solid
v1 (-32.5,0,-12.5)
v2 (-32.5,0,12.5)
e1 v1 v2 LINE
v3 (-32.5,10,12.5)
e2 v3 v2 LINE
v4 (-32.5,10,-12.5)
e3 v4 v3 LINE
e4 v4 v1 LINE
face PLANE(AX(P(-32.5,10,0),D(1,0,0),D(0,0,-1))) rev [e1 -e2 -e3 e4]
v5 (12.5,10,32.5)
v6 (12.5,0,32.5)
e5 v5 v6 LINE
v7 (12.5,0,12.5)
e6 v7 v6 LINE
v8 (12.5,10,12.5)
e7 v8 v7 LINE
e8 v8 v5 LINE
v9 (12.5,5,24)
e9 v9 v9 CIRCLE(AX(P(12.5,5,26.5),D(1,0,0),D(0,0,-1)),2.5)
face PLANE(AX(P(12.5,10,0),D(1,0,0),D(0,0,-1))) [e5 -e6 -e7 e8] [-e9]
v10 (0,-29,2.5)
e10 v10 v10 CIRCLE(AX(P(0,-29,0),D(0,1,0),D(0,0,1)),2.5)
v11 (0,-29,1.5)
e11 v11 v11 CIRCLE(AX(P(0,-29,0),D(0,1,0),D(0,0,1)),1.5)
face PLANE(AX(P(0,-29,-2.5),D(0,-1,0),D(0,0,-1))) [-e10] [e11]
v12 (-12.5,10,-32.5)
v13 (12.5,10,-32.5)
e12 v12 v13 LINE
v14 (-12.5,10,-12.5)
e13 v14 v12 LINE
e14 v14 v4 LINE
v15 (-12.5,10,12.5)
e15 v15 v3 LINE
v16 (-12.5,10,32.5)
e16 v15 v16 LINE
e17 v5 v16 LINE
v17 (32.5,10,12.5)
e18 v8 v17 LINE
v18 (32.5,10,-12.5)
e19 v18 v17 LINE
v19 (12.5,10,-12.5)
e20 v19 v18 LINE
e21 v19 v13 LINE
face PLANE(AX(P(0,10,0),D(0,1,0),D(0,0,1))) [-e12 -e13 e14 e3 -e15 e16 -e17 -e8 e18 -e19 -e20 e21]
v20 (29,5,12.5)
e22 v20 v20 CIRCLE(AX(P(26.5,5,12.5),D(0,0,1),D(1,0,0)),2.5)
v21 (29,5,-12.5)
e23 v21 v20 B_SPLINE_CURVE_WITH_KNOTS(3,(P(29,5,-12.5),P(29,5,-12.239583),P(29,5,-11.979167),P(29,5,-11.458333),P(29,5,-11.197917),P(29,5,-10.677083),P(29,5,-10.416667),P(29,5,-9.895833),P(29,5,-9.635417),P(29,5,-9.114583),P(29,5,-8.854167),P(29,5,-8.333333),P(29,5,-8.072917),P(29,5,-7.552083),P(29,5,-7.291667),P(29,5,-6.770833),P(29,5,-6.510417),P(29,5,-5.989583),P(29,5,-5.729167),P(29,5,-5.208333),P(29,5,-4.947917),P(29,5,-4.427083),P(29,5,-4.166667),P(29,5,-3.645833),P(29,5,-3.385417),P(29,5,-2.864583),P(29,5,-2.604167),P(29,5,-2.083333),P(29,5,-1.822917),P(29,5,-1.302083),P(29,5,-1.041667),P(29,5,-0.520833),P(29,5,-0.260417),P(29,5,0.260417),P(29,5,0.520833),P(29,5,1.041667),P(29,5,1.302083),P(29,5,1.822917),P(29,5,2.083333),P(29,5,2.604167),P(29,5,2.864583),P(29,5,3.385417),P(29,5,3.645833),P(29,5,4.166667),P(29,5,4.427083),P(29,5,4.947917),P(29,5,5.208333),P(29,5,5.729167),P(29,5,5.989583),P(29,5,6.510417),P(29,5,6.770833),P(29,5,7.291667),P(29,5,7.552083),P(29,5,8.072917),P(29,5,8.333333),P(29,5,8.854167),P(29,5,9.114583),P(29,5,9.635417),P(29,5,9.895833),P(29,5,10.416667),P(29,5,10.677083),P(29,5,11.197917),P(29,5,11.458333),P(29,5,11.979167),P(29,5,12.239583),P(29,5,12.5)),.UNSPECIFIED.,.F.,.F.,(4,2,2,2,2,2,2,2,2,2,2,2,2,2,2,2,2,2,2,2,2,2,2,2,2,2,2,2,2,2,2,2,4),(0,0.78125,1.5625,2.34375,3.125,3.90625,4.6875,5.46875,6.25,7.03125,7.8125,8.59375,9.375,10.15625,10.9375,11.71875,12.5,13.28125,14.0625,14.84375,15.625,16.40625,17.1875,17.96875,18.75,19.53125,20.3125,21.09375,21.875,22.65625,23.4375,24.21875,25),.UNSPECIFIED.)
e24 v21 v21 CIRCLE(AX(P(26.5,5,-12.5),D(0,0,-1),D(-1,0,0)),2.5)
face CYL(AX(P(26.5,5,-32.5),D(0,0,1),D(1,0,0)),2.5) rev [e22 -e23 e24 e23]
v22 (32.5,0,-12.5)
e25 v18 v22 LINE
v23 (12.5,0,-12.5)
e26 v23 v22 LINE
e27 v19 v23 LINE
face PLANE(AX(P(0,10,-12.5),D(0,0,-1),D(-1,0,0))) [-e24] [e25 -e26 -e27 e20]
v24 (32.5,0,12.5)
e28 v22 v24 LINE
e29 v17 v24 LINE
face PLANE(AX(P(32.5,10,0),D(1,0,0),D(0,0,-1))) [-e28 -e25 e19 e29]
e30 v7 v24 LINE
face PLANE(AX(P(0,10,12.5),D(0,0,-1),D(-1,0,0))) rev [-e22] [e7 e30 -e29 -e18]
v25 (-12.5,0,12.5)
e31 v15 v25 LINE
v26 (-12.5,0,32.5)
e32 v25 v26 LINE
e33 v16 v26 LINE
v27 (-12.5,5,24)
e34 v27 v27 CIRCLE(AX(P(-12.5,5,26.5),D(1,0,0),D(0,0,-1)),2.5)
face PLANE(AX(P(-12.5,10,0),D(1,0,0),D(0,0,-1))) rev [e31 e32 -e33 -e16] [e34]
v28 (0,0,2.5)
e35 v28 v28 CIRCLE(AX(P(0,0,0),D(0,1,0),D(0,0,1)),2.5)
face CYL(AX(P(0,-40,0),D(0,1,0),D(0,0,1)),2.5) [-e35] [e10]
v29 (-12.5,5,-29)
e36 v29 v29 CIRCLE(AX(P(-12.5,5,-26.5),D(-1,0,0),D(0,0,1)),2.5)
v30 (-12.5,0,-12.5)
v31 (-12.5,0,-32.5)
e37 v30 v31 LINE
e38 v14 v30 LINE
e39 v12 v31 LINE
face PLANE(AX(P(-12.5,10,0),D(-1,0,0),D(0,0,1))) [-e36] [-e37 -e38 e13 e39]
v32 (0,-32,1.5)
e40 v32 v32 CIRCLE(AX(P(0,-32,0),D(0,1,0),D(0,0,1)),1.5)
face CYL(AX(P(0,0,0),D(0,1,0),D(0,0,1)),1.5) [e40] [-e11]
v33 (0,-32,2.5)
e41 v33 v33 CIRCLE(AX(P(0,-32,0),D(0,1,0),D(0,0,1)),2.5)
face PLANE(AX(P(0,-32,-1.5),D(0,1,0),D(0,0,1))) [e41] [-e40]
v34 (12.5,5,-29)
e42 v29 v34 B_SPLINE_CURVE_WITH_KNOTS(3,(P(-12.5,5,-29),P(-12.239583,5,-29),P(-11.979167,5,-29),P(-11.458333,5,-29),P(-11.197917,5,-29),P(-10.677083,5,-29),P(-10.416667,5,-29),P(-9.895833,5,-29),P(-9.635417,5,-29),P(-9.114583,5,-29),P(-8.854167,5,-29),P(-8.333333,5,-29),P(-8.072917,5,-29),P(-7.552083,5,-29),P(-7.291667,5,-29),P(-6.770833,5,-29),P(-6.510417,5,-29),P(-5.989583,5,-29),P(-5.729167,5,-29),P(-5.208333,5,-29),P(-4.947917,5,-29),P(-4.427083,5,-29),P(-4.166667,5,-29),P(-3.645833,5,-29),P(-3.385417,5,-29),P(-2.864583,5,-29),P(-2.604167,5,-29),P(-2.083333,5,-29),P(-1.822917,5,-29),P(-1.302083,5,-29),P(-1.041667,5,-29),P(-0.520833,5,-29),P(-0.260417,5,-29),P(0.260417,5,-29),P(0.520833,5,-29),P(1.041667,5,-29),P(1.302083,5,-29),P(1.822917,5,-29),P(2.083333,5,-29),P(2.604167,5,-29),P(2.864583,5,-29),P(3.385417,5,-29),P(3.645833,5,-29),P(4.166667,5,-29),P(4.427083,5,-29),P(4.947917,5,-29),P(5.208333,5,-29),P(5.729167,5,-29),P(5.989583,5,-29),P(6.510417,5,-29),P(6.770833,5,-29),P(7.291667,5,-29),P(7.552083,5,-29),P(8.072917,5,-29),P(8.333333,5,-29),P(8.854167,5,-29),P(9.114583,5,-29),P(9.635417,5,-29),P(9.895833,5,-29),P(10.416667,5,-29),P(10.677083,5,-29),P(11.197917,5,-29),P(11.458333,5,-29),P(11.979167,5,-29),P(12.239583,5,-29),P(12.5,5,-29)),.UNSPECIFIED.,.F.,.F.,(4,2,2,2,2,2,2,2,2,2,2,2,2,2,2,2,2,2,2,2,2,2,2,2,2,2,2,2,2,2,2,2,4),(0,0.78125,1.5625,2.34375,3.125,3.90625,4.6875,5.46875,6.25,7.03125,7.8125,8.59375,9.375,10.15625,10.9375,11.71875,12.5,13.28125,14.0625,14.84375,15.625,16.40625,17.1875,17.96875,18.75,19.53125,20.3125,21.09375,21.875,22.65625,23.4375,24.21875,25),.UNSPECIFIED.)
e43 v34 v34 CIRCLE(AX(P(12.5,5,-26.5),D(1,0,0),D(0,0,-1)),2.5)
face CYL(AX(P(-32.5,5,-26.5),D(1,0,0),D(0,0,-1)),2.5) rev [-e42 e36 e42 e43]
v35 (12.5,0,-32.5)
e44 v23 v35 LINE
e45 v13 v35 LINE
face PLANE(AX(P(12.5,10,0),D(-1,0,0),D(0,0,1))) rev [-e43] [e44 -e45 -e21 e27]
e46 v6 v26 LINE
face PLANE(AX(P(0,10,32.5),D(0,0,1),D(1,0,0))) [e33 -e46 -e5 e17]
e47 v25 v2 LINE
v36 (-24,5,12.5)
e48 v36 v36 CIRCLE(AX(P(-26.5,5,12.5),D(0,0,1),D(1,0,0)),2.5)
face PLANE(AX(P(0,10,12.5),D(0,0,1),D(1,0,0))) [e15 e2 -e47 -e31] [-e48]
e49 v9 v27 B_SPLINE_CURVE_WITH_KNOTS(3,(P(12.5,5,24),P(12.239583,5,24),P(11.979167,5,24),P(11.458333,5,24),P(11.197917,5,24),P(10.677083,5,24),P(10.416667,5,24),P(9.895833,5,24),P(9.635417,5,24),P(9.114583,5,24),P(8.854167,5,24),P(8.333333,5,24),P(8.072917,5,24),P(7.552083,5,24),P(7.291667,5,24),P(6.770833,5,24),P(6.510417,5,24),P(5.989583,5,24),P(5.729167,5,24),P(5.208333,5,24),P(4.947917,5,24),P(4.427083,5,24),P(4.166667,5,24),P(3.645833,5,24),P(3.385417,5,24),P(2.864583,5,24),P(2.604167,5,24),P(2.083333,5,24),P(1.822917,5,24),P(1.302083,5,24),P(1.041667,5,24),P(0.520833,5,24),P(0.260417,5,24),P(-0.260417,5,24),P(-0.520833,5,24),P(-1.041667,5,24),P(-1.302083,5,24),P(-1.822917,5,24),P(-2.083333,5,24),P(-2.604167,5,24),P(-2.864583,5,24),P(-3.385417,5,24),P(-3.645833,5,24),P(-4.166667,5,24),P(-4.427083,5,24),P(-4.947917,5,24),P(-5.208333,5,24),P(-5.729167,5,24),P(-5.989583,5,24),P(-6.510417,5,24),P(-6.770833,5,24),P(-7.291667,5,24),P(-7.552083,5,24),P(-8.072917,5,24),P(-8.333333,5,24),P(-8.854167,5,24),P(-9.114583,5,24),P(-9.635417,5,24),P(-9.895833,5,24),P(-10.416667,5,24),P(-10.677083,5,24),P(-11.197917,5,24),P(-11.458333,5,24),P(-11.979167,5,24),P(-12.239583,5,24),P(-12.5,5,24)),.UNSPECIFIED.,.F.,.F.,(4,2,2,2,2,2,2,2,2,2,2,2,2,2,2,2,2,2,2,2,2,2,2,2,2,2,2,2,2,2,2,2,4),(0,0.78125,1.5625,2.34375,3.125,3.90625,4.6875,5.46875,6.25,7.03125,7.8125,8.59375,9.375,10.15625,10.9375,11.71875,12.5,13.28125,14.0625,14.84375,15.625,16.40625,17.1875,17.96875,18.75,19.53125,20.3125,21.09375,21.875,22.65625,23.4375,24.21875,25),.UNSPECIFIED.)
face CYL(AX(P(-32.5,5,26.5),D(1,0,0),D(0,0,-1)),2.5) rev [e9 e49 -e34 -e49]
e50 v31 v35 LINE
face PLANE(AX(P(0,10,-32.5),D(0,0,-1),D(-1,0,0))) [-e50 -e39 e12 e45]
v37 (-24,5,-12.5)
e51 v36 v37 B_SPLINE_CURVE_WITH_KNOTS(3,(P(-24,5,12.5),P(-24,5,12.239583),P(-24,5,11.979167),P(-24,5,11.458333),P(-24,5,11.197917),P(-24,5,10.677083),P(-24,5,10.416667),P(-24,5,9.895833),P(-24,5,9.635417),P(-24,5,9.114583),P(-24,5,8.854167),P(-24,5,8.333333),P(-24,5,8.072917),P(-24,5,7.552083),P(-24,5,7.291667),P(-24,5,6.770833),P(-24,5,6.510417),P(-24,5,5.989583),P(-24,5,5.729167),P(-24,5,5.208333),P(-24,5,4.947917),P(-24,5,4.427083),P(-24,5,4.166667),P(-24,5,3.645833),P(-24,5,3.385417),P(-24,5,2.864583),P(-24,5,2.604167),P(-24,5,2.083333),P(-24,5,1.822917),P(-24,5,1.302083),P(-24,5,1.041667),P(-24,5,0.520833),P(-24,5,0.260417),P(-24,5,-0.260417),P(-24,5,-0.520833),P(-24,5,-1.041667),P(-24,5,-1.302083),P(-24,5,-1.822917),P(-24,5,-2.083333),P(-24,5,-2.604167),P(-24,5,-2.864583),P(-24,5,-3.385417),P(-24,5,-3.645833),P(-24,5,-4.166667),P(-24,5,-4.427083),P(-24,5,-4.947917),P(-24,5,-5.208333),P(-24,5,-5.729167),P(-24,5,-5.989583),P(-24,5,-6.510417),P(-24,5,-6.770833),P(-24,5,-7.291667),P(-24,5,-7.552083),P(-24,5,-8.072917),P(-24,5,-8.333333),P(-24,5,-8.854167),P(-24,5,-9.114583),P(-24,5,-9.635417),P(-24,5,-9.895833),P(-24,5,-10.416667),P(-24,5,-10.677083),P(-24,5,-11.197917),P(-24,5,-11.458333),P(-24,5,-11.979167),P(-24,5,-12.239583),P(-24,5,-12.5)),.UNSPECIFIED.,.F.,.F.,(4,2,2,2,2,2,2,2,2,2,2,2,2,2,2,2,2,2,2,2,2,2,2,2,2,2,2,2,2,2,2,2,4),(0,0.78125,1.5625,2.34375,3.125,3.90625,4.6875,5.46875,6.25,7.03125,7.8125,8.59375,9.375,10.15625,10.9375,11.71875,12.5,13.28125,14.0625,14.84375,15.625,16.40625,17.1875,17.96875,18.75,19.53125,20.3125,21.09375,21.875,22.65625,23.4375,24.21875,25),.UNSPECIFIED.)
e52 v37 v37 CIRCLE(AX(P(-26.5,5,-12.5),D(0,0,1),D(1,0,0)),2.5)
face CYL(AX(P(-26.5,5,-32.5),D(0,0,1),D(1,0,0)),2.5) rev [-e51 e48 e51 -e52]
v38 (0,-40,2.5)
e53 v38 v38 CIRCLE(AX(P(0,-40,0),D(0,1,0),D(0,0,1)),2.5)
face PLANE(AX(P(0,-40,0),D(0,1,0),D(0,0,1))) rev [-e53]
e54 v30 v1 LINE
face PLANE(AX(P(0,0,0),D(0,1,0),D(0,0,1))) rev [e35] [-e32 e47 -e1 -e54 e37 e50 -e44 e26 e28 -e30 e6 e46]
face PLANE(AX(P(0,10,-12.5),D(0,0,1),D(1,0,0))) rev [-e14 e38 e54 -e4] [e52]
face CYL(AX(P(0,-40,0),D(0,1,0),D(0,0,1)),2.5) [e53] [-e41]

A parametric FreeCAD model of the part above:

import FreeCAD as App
import Part
import Sketcher
from FreeCAD import Vector
Q = App.Units.Quantity

doc = App.newDocument("Part")
body = doc.addObject("PartDesign::Body", "Body")

sketch1 = body.newObject("Sketcher::SketchObject", "Sketch")
sketch1.AttachmentSupport = (doc.getObject("XZ_Plane"), [""])
sketch1.MapMode = "FlatFace"
sketch1.addGeometry(Part.LineSegment(Vector(-32, -12, 0), Vector(-32, 12, 0)), False)
sketch1.addGeometry(Part.LineSegment(Vector(-32, 12, 0), Vector(-12, 12, 0)), False)
sketch1.addGeometry(Part.LineSegment(Vector(-12, 12, 0), Vector(-12, 32, 0)), False)
sketch1.addGeometry(Part.LineSegment(Vector(-12, 32, 0), Vector(12, 32, 0)), False)
sketch1.addGeometry(Part.LineSegment(Vector(12, 32, 0), Vector(12, 12, 0)), False)
sketch1.addGeometry(Part.LineSegment(Vector(12, 12, 0), Vector(32, 12, 0)), False)
sketch1.addGeometry(Part.LineSegment(Vector(32, 12, 0), Vector(32, -12, 0)), False)
sketch1.addGeometry(Part.LineSegment(Vector(32, -12, 0), Vector(12, -12, 0)), False)
sketch1.addGeometry(Part.LineSegment(Vector(12, -12, 0), Vector(12, -32, 0)), False)
sketch1.addGeometry(Part.LineSegment(Vector(12, -32, 0), Vector(-12, -32, 0)), False)
sketch1.addGeometry(Part.LineSegment(Vector(-12, -32, 0), Vector(-12, -12, 0)), False)
sketch1.addGeometry(Part.LineSegment(Vector(-12, -12, 0), Vector(-32, -12, 0)), False)
sketch1.addConstraint(Sketcher.Constraint("Coincident", 0, 2, 1, 1))
sketch1.addConstraint(Sketcher.Constraint("Coincident", 1, 2, 2, 1))
sketch1.addConstraint(Sketcher.Constraint("Coincident", 2, 2, 3, 1))
sketch1.addConstraint(Sketcher.Constraint("Coincident", 3, 2, 4, 1))
sketch1.addConstraint(Sketcher.Constraint("Coincident", 4, 2, 5, 1))
sketch1.addConstraint(Sketcher.Constraint("Coincident", 5, 2, 6, 1))
sketch1.addConstraint(Sketcher.Constraint("Coincident", 6, 2, 7, 1))
sketch1.addConstraint(Sketcher.Constraint("Coincident", 7, 2, 8, 1))
sketch1.addConstraint(Sketcher.Constraint("Coincident", 8, 2, 9, 1))
sketch1.addConstraint(Sketcher.Constraint("Coincident", 9, 2, 10, 1))
sketch1.addConstraint(Sketcher.Constraint("Coincident", 10, 2, 11, 1))
sketch1.addConstraint(Sketcher.Constraint("Coincident", 11, 2, 0, 1))
sketch1.addConstraint(Sketcher.Constraint("Vertical", 0))
sketch1.addConstraint(Sketcher.Constraint("Horizontal", 1))
sketch1.addConstraint(Sketcher.Constraint("Vertical", 2))
sketch1.addConstraint(Sketcher.Constraint("Horizontal", 3))
sketch1.addConstraint(Sketcher.Constraint("Vertical", 4))
sketch1.addConstraint(Sketcher.Constraint("Horizontal", 5))
sketch1.addConstraint(Sketcher.Constraint("Vertical", 6))
sketch1.addConstraint(Sketcher.Constraint("Horizontal", 7))
sketch1.addConstraint(Sketcher.Constraint("Vertical", 8))
sketch1.addConstraint(Sketcher.Constraint("Horizontal", 9))
sketch1.addConstraint(Sketcher.Constraint("Vertical", 10))
sketch1.addConstraint(Sketcher.Constraint("Horizontal", 11))
sketch1.addConstraint(Sketcher.Constraint("Symmetric", 0, 2, 6, 2, -1, 1))
sketch1.addConstraint(Sketcher.Constraint("Symmetric", 2, 2, 8, 2, -1, 1))
sketch1.addConstraint(Sketcher.Constraint("Symmetric", 4, 2, 10, 2, -1, 1))
sketch1.addConstraint(Sketcher.Constraint("Symmetric", 1, 2, 4, 2, -2))
sketch1.addConstraint(Sketcher.Constraint("Equal", 9, 0))
sketch1.addConstraint(Sketcher.Constraint("Equal", 11, 2))
sketch1.addConstraint(Sketcher.Constraint("DistanceX", 1, 1, 1, 2, Q("20 mm")))
sketch1.addConstraint(Sketcher.Constraint("DistanceX", 3, 1, 3, 2, Q("25 mm")))
pad1 = body.newObject("PartDesign::Pad", "Pad")
pad1.Profile = sketch1
pad1.Length = 10
pad1.Reversed = True

sketch2 = body.newObject("Sketcher::SketchObject", "Sketch001")
sketch2.AttachmentSupport = (doc.getObject("YZ_Plane"), [""])
sketch2.MapMode = "FlatFace"
sketch2.AttachmentOffset = App.Placement(Vector(0, 0, 12.5), App.Rotation())
sketch2.addGeometry(Part.Circle(Vector(5, 26.5, 0), Vector(0, 0, 1), 2.5), False)
sketch2.addGeometry(Part.Circle(Vector(5, -26.5, 0), Vector(0, 0, 1), 2.5), False)
sketch2.addConstraint(Sketcher.Constraint("Equal", 0, 1))
sketch2.addConstraint(Sketcher.Constraint("Symmetric", 0, 3, 1, 3, -1))
sketch2.addConstraint(Sketcher.Constraint("Diameter", 0, Q("5 mm")))
sketch2.addConstraint(Sketcher.Constraint("DistanceX", -1, 1, 0, 3, Q("5 mm")))
sketch2.addConstraint(Sketcher.Constraint("DistanceY", 1, 3, 0, 3, Q("53 mm")))
pocket1 = body.newObject("PartDesign::Pocket", "Pocket")
pocket1.Profile = sketch2
pocket1.Type = "ThroughAll"

sketch3 = body.newObject("Sketcher::SketchObject", "Sketch002")
sketch3.AttachmentSupport = (doc.getObject("XY_Plane"), [""])
sketch3.MapMode = "FlatFace"
sketch3.AttachmentOffset = App.Placement(Vector(0, 0, 12.5), App.Rotation())
sketch3.addGeometry(Part.Circle(Vector(26.5, 5, 0), Vector(0, 0, 1), 2.5), False)
sketch3.addGeometry(Part.Circle(Vector(-26.5, 5, 0), Vector(0, 0, 1), 2.5), False)
sketch3.addConstraint(Sketcher.Constraint("Equal", 0, 1))
sketch3.addConstraint(Sketcher.Constraint("Symmetric", 0, 3, 1, 3, -2))
sketch3.addConstraint(Sketcher.Constraint("Diameter", 0, Q("5 mm")))
sketch3.addConstraint(Sketcher.Constraint("DistanceY", -1, 1, 0, 3, Q("5 mm")))
sketch3.addConstraint(Sketcher.Constraint("DistanceX", 1, 3, 0, 3, Q("53 mm")))
pocket2 = body.newObject("PartDesign::Pocket", "Pocket001")
pocket2.Profile = sketch3
pocket2.Type = "ThroughAll"

sketch4 = body.newObject("Sketcher::SketchObject", "Sketch003")
sketch4.AttachmentSupport = (doc.getObject("XZ_Plane"), [""])
sketch4.MapMode = "FlatFace"
sketch4.addGeometry(Part.Circle(Vector(0, 0, 0), Vector(0, 0, 1), 2.5), False)
sketch4.addConstraint(Sketcher.Constraint("Coincident", 0, 3, -1, 1))
sketch4.addConstraint(Sketcher.Constraint("Diameter", 0, Q("5 mm")))
pad2 = body.newObject("PartDesign::Pad", "Pad001")
pad2.Profile = sketch4
pad2.Length = 40

sketch5 = body.newObject("Sketcher::SketchObject", "Sketch004")
sketch5.AttachmentSupport = (doc.getObject("YZ_Plane"), [""])
sketch5.MapMode = "FlatFace"
sketch5.addGeometry(Part.LineSegment(Vector(-29, -1.5, 0), Vector(-32, -1.5, 0)), False)
sketch5.addGeometry(Part.LineSegment(Vector(-32, -1.5, 0), Vector(-32, -2.5, 0)), False)
sketch5.addGeometry(Part.LineSegment(Vector(-32, -2.5, 0), Vector(-29, -2.5, 0)), False)
sketch5.addGeometry(Part.LineSegment(Vector(-29, -2.5, 0), Vector(-29, -1.5, 0)), False)
sketch5.addConstraint(Sketcher.Constraint("Coincident", 0, 2, 1, 1))
sketch5.addConstraint(Sketcher.Constraint("Coincident", 1, 2, 2, 1))
sketch5.addConstraint(Sketcher.Constraint("Coincident", 2, 2, 3, 1))
sketch5.addConstraint(Sketcher.Constraint("Coincident", 3, 2, 0, 1))
sketch5.addConstraint(Sketcher.Constraint("Horizontal", 0))
sketch5.addConstraint(Sketcher.Constraint("Vertical", 1))
sketch5.addConstraint(Sketcher.Constraint("Horizontal", 2))
sketch5.addConstraint(Sketcher.Constraint("Vertical", 3))
sketch5.addConstraint(Sketcher.Constraint("DistanceX", 0, 2, 0, 1, Q("3 mm")))
sketch5.addConstraint(Sketcher.Constraint("DistanceY", 1, 2, 1, 1, Q("1 mm")))
sketch5.addConstraint(Sketcher.Constraint("DistanceX", 0, 2, -1, 1, Q("32 mm")))
sketch5.addConstraint(Sketcher.Constraint("DistanceY", 0, 2, -1, 1, Q("1.5 mm")))
groove = body.newObject("PartDesign::Groove", "Groove")
groove.Profile = sketch5
groove.ReferenceAxis = (sketch5, ["H_Axis"])
groove.Angle = 360

doc.recompute()
